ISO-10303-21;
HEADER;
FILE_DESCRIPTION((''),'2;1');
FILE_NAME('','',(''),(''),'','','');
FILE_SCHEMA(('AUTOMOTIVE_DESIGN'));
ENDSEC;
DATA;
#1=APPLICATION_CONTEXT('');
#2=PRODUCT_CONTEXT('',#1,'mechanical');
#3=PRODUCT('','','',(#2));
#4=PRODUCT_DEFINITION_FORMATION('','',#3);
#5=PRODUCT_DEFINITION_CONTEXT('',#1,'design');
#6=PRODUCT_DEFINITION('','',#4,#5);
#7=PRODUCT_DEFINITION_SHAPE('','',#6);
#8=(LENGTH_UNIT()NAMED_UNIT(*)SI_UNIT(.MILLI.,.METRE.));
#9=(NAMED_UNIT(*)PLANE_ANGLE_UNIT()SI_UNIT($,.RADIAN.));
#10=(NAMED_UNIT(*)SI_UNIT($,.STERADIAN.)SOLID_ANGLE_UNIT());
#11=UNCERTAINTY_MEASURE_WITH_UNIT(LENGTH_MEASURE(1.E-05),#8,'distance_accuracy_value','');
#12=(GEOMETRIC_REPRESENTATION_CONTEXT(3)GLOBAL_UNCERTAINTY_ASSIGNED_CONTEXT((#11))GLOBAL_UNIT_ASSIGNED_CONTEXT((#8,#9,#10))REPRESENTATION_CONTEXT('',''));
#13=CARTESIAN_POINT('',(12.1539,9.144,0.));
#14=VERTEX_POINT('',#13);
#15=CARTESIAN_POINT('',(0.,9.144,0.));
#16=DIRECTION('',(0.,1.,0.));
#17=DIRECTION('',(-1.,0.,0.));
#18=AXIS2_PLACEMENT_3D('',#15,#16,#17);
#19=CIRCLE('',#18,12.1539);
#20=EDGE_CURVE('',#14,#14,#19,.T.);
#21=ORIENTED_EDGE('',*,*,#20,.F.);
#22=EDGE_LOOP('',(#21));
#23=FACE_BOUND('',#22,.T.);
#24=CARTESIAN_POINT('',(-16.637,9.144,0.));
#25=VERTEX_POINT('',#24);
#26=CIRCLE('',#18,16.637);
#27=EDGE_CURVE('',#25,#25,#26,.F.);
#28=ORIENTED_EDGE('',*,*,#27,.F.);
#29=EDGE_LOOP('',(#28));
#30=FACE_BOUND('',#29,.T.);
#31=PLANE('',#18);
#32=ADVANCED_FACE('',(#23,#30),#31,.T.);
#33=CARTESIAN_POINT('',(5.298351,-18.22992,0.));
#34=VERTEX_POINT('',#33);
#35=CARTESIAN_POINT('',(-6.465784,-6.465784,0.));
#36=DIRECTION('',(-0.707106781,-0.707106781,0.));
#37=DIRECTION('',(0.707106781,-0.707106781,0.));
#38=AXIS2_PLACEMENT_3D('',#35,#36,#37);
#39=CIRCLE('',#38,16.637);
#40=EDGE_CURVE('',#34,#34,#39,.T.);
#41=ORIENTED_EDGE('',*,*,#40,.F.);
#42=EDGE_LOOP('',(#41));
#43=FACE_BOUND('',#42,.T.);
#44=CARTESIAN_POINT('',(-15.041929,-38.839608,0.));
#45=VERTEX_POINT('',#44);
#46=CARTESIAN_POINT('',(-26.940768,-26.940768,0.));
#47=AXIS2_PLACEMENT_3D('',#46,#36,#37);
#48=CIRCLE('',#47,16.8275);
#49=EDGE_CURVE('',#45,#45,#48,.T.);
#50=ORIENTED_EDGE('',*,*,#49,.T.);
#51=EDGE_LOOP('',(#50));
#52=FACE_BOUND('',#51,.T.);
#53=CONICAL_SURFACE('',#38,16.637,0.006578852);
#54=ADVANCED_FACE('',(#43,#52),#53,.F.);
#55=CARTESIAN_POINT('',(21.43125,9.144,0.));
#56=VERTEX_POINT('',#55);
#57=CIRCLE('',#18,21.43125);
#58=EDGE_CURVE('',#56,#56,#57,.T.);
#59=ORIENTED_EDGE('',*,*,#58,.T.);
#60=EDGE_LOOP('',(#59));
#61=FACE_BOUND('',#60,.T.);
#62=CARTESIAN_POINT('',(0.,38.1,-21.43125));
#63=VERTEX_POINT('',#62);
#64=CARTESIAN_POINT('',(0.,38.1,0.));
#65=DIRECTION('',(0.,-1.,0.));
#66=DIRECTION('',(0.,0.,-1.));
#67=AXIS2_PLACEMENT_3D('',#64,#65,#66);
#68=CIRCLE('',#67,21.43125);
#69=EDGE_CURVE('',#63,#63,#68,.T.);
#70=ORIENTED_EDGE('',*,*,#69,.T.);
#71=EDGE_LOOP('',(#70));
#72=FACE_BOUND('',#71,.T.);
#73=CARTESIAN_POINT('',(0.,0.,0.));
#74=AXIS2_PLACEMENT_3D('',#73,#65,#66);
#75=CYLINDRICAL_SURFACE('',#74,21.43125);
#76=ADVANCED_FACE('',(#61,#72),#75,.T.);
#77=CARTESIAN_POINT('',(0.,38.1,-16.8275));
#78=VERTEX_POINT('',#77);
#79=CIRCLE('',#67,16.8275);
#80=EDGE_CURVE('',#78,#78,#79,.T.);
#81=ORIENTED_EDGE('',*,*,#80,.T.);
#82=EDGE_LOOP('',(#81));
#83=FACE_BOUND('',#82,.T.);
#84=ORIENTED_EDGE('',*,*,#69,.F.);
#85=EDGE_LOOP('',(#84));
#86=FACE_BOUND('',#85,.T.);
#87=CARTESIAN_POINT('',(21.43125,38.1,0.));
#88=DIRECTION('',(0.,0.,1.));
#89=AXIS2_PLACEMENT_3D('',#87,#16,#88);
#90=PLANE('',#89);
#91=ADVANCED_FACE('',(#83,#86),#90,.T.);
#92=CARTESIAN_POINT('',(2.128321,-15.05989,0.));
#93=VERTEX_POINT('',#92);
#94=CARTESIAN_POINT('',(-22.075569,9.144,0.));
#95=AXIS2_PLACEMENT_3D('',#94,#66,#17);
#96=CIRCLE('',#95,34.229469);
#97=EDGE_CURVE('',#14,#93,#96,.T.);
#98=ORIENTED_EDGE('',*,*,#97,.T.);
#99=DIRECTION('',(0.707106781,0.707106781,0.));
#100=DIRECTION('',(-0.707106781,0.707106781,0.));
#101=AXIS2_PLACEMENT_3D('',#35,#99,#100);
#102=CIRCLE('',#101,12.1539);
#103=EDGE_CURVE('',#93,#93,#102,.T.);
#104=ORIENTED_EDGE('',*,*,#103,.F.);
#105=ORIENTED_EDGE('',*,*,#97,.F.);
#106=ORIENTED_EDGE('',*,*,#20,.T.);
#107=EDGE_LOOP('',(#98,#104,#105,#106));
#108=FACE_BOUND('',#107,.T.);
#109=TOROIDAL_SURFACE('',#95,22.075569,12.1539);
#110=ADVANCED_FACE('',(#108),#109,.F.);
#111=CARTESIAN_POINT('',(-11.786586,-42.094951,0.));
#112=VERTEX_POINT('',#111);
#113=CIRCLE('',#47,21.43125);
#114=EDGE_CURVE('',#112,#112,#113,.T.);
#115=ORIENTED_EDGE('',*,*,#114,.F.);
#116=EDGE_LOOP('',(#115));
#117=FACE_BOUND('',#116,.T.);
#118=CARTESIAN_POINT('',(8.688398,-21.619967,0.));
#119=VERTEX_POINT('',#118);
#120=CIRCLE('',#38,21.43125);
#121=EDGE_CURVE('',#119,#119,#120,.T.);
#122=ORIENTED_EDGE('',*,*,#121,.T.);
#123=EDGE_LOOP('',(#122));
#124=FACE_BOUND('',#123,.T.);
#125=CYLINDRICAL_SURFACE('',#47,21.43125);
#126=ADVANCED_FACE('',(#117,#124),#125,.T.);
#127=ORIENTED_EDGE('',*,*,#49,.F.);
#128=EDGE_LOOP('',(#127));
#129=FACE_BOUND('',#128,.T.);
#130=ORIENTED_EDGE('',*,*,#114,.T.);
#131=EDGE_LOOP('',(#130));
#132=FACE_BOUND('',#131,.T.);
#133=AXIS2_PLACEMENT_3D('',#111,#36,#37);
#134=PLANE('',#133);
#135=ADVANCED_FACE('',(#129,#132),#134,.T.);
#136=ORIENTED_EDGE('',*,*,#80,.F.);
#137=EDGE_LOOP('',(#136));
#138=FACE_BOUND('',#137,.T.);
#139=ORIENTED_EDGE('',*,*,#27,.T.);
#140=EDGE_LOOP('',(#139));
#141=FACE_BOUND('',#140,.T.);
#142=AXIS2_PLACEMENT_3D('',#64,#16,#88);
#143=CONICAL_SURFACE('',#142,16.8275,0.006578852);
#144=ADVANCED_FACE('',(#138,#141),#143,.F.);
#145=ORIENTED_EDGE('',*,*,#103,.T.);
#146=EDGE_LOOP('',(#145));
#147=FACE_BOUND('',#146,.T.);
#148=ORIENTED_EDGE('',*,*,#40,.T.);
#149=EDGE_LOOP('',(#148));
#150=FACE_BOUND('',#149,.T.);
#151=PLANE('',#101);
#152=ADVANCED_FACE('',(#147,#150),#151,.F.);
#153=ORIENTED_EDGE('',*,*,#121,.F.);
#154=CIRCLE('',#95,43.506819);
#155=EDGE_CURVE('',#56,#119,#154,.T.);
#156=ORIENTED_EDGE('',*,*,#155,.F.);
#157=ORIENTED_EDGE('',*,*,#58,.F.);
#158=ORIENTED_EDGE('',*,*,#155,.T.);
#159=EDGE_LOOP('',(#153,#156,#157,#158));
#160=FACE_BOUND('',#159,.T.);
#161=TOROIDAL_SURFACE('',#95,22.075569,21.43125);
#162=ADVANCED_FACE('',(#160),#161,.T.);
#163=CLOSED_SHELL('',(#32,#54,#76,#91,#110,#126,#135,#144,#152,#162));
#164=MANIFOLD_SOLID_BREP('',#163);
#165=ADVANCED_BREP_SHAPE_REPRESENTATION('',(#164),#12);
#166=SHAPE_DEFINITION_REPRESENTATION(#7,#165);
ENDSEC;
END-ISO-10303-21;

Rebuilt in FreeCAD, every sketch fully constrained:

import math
import FreeCAD as App
import Part
import Sketcher
from FreeCAD import Vector
Q = App.Units.Quantity


def add_polygon(sketch, points):
    """Adds a closed chain of lines whose ends are joined by coincident constraints."""
    first, n = sketch.GeometryCount, len(points)
    for a, b in zip(points, points[1:] + points[:1]):
        sketch.addGeometry(Part.LineSegment(App.Vector(*a, 0), App.Vector(*b, 0)), False)
    for i in range(n):
        sketch.addConstraint(Sketcher.Constraint("Coincident", first + i, 2, first + (i + 1) % n, 1))

doc = App.newDocument("Part")
params = doc.addObject("Spreadsheet::Sheet", "Params")
for row, (alias, value) in enumerate([
    ("sketch1_length", "1.14 in"),
    ("revolution_angle", "360 deg"),
    ("sketch2_height", "1.14 in"),
    ("revolution2_angle", "360 deg"),
    ("sketch3_diameter", "1.6875 in"),
    ("sketch3_diameter2", "0.957 in"),
], start=1):
    params.set(f"A{row}", alias)
    params.set(f"B{row}", "=" + value)
    params.setAlias(f"B{row}", alias)

body = doc.addObject("PartDesign::Body", "Body")

# Sketch on XY plane
sketch1 = body.newObject("Sketcher::SketchObject", "Sketch")
sketch1.AttachmentSupport = (doc.getObject("XY_Plane"), [""])
sketch1.MapMode = "FlatFace"
add_polygon(sketch1, [(-11.8, -42.1), (8.7, -21.6), (5.3, -18.2), (-15, -38.8)])  # lines 0-3
sketch1.addGeometry(Part.LineSegment(Vector(-26.9, -26.9, 0), Vector(-6.5, -6.5, 0)), True)  # axis
sketch1.addConstraint([
    Sketcher.Constraint("Perpendicular", 0, 1),
    Sketcher.Constraint("Parallel", 1, 3),
    Sketcher.Constraint("Perpendicular", 3, 4),
    Sketcher.Constraint("Equal", 0, 4),
    Sketcher.Constraint("Angle", 0, Q("45 deg")),
    Sketcher.Constraint("Distance", 0, Q("1.14 in")),
    Sketcher.Constraint("DistanceY", 4, 1, 0, 2, Q("5.320802 mm")),
    Sketcher.Constraint("DistanceX", 3, 2, 4, 2, Q("5.320802 mm")),
    Sketcher.Constraint("Distance", 1, Q("4.79425 mm")),
    Sketcher.Constraint("Distance", 3, Q("4.60375 mm")),
    Sketcher.Constraint("DistanceX", -1, 1, 1, 2, Q("5.298351 mm")),
    Sketcher.Constraint("DistanceY", 1, 2, -1, 1, Q("18.22992 mm")),
])
sketch1.setExpression("Constraints[9]", "Params.sketch1_length")
revolution = body.newObject("PartDesign::Revolution", "Revolution")
revolution.Profile = sketch1
revolution.ReferenceAxis = (sketch1, ["Axis0"])
revolution.setExpression("Angle", "Params.revolution_angle")
body2 = doc.addObject("PartDesign::Body", "Body001")

# Sketch on XY plane
sketch2 = body2.newObject("Sketcher::SketchObject", "Sketch001")
sketch2.AttachmentSupport = (doc.getObject("XY_Plane001"), [""])
sketch2.MapMode = "FlatFace"
add_polygon(sketch2, [(16.8, 38.1), (16.6, 9.1), (21.4, 9.1), (21.4, 38.1)])  # lines 0-3
sketch2.addConstraint([
    Sketcher.Constraint("Horizontal", 1),
    Sketcher.Constraint("Vertical", 2),
    Sketcher.Constraint("Horizontal", 3),
    Sketcher.Constraint("DistanceY", 2, 1, 2, 2, Q("1.14 in")),
    Sketcher.Constraint("DistanceY", -1, 1, 2, 2, Q("1.5 in")),
    Sketcher.Constraint("DistanceX", -1, 1, 0, 2, Q("0.655 in")),
    Sketcher.Constraint("DistanceX", -1, 1, 1, 2, Q("0.84375 in")),
    Sketcher.Constraint("DistanceX", -1, 1, 3, 2, Q("0.6625 in")),
])
sketch2.setExpression("Constraints[7]", "Params.sketch2_height")
revolution2 = body2.newObject("PartDesign::Revolution", "Revolution001")
revolution2.Profile = sketch2
revolution2.ReferenceAxis = (sketch2, ["V_Axis"])
revolution2.setExpression("Angle", "Params.revolution2_angle")
body.AllowCompound = True
doc.recompute()

boolean = body.newObject("PartDesign::Boolean", "Boolean")
boolean.Type = "Fuse"
boolean.addObjects([body2])

# Sketch on an angled plane
sketch3 = body.newObject("Sketcher::SketchObject", "Sketch002")
sketch3.Placement = App.Placement(Vector(-6.465784, -6.465784, 0), App.Rotation(Vector(0, 0, -1), Vector(-0.707106781, 0.707106781, 0), Vector(0.707106781, 0.707106781, 0), "ZXY"))
sketch3.addGeometry([
    Part.Circle(Vector(0, 0, 0), Vector(0, 0, 1), 21),
    Part.Circle(Vector(0, 0, 0), Vector(0, 0, 1), 12),
], False)
sketch3.addConstraint([
    Sketcher.Constraint("Coincident", 0, 3, -1, 1),
    Sketcher.Constraint("Coincident", 1, 3, -1, 1),
    Sketcher.Constraint("Diameter", 0, Q("1.6875 in")),
    Sketcher.Constraint("Diameter", 1, Q("0.957 in")),
])
sketch3.setExpression("Constraints[2]", "Params.sketch3_diameter")
sketch3.setExpression("Constraints[3]", "Params.sketch3_diameter2")

# Sketch on XY plane
sketch4 = body.newObject("Sketcher::SketchObject", "Sketch003")
sketch4.AttachmentSupport = (doc.getObject("XY_Plane"), [""])
sketch4.MapMode = "FlatFace"
sketch4.addGeometry(Part.ArcOfCircle(Part.Circle(Vector(-22, 9, 0), Vector(0, 0, 1), 22), math.radians(-45), math.radians(0)), False)
sketch4.addConstraint([
    Sketcher.Constraint("PointOnObject", 0, 2, -2),
    Sketcher.Constraint("DistanceY", -1, 1, 0, 3, Q("0.36 in")),
    Sketcher.Constraint("DistanceY", -1, 1, 0, 2, Q("0.36 in")),
    Sketcher.Constraint("Radius", 0, Q("22.075569 mm")),
    Sketcher.Constraint("DistanceX", 0, 1, -1, 1, Q("6.465784 mm")),
])
doc.recompute()

additivepipe = body.newObject("PartDesign::AdditivePipe", "AdditivePipe")
additivepipe.Profile = sketch3
additivepipe.Spine = (sketch4, ["Edge1"])

doc.recompute()
